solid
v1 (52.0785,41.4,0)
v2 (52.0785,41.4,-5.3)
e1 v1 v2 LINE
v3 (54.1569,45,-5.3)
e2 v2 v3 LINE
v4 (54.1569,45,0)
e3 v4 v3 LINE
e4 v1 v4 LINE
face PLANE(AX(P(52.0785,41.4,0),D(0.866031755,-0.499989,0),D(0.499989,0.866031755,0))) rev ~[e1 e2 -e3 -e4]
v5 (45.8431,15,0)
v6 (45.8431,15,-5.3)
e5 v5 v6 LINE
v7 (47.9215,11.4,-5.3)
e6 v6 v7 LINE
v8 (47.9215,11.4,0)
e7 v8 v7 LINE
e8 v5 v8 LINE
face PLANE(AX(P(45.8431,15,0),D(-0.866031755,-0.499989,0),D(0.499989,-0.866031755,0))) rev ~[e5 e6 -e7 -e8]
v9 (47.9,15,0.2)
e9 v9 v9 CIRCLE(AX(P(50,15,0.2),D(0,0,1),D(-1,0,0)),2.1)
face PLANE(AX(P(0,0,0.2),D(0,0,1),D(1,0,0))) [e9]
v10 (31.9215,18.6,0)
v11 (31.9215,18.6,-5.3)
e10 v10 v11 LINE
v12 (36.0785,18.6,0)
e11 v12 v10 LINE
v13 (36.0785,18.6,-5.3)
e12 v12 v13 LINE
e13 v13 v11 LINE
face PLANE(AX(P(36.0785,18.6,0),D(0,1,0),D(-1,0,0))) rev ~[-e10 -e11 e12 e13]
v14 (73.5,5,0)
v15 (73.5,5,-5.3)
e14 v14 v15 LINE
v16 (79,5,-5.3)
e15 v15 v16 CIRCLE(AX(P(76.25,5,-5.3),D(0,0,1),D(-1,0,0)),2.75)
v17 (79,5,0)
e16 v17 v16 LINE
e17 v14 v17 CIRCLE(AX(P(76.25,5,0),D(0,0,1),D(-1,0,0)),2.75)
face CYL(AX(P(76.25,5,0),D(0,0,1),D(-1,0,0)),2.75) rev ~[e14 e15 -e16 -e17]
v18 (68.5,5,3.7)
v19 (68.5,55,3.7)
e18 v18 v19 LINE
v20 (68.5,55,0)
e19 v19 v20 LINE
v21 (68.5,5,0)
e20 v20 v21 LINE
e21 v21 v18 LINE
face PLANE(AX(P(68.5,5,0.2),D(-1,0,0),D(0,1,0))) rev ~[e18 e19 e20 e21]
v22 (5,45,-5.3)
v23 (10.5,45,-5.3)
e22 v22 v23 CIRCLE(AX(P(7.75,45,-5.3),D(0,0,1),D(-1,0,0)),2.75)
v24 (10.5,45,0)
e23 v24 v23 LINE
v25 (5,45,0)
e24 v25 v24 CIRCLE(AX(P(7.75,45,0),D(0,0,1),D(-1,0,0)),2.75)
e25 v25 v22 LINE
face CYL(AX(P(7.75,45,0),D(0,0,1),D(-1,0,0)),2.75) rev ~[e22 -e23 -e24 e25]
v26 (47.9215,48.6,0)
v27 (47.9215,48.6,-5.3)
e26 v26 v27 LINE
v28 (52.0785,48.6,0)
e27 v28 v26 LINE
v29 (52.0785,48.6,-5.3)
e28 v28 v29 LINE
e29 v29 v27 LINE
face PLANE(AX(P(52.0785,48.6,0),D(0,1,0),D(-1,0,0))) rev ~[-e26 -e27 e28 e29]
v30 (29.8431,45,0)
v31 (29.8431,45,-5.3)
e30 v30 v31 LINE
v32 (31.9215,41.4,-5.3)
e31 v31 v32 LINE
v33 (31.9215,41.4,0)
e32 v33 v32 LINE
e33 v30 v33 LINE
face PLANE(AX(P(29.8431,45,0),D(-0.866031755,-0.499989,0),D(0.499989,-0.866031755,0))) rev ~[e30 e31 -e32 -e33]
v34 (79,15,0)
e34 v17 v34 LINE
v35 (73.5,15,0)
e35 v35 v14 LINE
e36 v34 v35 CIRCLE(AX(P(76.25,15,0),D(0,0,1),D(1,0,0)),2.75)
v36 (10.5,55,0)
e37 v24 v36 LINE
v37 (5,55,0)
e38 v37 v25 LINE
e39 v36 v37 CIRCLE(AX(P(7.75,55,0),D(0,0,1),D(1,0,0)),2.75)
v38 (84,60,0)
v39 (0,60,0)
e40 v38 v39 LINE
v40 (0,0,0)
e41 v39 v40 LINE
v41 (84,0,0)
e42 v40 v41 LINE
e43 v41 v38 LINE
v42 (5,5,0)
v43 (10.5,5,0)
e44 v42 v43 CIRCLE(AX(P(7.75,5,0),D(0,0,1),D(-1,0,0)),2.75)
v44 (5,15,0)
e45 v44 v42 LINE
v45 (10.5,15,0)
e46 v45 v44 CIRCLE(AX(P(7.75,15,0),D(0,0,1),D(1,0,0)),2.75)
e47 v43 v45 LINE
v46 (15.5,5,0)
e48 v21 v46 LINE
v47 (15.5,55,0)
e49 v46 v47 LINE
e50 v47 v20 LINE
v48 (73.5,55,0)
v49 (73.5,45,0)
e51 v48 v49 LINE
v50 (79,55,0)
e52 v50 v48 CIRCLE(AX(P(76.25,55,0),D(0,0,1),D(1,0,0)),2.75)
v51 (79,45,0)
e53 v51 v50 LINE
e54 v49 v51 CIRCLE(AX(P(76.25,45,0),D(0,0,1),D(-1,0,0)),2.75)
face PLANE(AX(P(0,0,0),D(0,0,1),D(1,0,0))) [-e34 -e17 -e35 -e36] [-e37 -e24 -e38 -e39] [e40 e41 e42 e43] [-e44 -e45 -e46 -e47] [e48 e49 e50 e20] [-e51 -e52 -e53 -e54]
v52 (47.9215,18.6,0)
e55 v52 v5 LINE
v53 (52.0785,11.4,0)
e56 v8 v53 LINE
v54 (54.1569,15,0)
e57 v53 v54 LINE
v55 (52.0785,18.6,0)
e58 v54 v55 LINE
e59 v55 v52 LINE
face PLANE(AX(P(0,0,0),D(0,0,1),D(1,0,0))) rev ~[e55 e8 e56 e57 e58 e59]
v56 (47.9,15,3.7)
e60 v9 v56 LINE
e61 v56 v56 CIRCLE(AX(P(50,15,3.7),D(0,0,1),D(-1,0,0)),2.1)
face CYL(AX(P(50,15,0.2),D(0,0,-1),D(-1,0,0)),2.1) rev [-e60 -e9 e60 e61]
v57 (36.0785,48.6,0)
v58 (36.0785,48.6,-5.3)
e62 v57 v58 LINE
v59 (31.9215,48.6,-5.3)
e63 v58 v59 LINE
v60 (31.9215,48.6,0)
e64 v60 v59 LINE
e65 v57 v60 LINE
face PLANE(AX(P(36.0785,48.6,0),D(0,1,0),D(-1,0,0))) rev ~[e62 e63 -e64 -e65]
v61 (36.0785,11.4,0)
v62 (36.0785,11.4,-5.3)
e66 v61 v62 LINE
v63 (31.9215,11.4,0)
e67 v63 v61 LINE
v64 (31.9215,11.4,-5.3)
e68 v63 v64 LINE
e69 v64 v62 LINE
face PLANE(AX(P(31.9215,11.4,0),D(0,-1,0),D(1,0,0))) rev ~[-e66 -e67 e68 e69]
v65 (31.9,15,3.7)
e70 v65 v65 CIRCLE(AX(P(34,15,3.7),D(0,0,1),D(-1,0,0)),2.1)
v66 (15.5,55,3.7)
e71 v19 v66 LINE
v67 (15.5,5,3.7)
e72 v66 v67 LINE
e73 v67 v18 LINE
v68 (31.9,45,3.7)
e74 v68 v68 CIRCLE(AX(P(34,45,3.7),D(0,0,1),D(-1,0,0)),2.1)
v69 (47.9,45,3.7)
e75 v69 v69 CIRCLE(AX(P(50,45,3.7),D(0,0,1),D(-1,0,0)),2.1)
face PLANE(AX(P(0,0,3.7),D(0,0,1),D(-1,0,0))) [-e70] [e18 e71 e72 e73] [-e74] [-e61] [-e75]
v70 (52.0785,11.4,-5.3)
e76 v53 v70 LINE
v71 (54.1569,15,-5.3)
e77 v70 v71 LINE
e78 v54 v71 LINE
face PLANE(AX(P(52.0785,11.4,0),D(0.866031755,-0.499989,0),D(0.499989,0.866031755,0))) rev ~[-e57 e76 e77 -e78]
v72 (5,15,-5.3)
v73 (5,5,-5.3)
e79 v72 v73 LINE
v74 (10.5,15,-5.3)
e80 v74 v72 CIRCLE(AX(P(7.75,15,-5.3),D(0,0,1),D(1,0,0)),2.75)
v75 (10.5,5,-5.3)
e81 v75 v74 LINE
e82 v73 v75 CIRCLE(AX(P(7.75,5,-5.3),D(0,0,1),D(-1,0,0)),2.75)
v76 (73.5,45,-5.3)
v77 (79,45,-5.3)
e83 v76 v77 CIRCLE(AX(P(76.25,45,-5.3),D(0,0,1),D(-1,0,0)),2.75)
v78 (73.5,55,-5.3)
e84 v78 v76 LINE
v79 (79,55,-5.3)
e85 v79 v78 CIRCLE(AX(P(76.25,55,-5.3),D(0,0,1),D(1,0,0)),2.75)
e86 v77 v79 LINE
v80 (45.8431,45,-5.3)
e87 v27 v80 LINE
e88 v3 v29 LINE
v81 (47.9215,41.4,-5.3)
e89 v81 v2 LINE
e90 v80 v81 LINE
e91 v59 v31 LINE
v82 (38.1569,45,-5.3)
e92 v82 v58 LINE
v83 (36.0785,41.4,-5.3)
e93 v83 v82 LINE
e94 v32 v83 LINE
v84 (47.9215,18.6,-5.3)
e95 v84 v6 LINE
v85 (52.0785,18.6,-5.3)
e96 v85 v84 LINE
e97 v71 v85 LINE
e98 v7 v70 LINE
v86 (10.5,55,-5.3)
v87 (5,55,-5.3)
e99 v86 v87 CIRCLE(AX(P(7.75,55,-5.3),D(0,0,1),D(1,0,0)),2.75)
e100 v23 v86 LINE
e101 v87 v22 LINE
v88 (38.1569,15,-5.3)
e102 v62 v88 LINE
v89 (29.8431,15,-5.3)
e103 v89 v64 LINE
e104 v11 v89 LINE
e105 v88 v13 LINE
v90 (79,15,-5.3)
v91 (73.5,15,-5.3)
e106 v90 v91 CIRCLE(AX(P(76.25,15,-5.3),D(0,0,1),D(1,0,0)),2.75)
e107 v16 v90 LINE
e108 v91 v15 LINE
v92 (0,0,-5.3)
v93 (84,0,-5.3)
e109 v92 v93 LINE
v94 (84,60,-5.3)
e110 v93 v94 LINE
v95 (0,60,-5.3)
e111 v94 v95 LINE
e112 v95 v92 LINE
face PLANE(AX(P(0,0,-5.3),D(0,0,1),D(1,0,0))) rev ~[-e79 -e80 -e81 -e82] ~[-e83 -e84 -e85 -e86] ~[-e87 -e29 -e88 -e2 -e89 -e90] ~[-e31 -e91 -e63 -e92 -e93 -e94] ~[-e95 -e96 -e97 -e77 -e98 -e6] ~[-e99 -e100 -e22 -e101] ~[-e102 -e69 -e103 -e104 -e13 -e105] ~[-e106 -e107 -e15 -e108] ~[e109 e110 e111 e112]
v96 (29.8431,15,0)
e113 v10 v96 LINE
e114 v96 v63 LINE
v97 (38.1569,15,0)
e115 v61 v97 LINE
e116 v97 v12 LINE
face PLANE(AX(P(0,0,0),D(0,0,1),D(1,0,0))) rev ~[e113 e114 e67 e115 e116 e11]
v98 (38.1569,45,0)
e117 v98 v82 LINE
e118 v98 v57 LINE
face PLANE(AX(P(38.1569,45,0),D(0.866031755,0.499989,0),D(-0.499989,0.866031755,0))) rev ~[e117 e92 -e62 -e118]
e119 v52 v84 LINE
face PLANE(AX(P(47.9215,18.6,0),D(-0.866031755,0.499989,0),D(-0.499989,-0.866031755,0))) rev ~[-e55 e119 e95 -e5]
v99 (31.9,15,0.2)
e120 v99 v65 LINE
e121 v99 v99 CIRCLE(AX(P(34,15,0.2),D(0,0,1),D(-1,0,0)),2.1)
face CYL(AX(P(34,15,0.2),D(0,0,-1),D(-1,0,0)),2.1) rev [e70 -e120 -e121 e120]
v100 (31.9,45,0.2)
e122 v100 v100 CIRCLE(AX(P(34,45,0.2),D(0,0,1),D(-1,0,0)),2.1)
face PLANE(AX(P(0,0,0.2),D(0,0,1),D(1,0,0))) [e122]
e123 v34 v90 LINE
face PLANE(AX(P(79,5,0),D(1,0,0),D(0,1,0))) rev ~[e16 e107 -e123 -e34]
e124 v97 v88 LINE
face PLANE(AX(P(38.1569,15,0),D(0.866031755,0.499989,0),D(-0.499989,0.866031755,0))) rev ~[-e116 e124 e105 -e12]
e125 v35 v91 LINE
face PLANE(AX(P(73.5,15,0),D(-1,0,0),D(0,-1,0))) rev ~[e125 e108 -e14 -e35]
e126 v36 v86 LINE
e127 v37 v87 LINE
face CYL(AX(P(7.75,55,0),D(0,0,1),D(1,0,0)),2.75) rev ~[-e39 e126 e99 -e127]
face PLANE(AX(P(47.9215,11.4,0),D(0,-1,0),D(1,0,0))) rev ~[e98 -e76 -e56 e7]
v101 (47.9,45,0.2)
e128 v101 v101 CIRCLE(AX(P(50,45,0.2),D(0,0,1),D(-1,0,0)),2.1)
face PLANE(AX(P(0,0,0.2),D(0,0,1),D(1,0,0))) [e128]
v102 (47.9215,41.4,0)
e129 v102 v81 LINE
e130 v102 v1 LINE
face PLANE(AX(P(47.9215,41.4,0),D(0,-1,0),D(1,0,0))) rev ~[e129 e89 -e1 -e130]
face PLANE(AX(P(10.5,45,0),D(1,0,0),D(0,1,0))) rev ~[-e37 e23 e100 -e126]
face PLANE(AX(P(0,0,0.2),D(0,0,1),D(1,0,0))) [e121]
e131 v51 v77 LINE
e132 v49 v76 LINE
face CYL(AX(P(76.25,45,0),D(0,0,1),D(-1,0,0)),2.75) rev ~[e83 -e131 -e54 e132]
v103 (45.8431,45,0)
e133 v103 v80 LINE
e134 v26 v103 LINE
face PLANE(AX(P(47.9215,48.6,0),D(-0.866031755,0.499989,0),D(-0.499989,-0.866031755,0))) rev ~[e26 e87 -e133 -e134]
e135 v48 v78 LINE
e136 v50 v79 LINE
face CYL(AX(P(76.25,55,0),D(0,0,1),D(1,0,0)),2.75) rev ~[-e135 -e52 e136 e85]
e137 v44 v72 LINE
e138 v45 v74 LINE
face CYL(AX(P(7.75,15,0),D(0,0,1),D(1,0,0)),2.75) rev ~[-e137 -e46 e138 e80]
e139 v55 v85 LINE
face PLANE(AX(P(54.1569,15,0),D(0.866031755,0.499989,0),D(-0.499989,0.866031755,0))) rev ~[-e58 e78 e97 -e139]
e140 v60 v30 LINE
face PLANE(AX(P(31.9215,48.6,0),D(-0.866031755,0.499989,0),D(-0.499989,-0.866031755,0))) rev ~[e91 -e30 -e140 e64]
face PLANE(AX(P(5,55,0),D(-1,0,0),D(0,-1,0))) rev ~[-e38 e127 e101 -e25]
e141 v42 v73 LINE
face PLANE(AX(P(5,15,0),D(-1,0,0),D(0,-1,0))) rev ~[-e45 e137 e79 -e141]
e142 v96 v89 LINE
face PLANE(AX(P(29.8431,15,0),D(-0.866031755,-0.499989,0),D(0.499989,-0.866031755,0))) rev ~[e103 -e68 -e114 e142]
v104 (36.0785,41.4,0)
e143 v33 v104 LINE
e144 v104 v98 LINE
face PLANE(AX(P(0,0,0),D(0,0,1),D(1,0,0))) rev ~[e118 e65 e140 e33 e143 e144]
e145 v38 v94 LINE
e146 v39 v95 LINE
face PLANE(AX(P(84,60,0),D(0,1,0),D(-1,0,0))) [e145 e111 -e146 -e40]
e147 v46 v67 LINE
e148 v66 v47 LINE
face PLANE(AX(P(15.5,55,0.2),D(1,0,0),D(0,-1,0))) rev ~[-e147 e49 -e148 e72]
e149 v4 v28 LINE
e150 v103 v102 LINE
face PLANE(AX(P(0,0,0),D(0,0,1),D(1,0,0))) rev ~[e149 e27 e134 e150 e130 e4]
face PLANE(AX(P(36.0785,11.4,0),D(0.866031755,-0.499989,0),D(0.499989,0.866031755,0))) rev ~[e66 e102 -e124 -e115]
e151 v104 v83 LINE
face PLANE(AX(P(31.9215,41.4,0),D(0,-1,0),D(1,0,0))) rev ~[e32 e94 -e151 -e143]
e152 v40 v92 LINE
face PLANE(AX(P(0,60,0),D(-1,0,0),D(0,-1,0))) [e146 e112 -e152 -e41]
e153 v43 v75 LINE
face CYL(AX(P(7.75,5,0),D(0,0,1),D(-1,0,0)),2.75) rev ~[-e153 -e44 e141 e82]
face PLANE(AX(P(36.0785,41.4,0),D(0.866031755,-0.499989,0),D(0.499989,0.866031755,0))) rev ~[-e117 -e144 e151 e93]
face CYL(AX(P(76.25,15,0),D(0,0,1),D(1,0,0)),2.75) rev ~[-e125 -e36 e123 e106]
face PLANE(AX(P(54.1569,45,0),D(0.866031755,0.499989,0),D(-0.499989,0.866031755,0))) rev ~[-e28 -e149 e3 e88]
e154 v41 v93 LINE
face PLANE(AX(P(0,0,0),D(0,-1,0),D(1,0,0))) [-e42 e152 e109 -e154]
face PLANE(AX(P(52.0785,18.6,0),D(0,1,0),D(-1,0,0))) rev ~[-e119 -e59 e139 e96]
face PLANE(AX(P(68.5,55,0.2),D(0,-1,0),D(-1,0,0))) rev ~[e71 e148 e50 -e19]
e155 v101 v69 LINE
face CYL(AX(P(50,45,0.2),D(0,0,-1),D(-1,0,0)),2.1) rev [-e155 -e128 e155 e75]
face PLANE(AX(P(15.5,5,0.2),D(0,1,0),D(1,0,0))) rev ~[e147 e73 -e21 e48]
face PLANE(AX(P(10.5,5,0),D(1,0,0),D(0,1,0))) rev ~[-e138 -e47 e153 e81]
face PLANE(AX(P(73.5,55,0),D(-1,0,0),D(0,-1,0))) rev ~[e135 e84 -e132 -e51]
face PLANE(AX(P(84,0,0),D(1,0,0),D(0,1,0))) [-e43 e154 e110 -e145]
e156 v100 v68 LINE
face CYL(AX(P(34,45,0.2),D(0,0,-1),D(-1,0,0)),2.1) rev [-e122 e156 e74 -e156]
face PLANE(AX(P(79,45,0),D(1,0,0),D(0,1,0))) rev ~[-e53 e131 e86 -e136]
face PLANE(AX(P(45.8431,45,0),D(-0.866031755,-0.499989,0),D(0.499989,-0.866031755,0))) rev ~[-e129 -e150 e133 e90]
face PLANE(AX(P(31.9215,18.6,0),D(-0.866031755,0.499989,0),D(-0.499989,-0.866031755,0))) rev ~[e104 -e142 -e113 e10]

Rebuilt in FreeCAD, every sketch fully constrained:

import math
import FreeCAD as App
import Part
import Sketcher
Q = App.Units.Quantity


def add_polygon(sketch, points):
    """Adds a closed chain of lines whose ends are joined by coincident constraints."""
    first, n = sketch.GeometryCount, len(points)
    for a, b in zip(points, points[1:] + points[:1]):
        sketch.addGeometry(Part.LineSegment(App.Vector(*a, 0), App.Vector(*b, 0)), False)
    for i in range(n):
        sketch.addConstraint(Sketcher.Constraint("Coincident", first + i, 2, first + (i + 1) % n, 1))

doc = App.newDocument("Part")
body = doc.addObject("PartDesign::Body", "Body")

sketch1 = body.newObject("Sketcher::SketchObject", "Sketch")
sketch1.AttachmentSupport = (doc.getObject("XY_Plane"), [""])
sketch1.MapMode = "FlatFace"
add_polygon(sketch1, [(0, 60), (0, 0), (84, 0), (84, 60)])
sketch1.addGeometry(Part.LineSegment(App.Vector(10.5, 15, 0), App.Vector(10.5, 5, 0)), False)
sketch1.addGeometry(Part.ArcOfCircle(Part.Circle(App.Vector(7.8, 5, 0), App.Vector(0, 0, 1), 2.8), math.radians(180), math.radians(360)), False)
sketch1.addGeometry(Part.LineSegment(App.Vector(5, 5, 0), App.Vector(5, 15, 0)), False)
sketch1.addGeometry(Part.ArcOfCircle(Part.Circle(App.Vector(7.8, 15, 0), App.Vector(0, 0, 1), 2.8), math.radians(0), math.radians(180)), False)
sketch1.addGeometry(Part.LineSegment(App.Vector(73.5, 5, 0), App.Vector(73.5, 15, 0)), False)
sketch1.addGeometry(Part.ArcOfCircle(Part.Circle(App.Vector(76.2, 15, 0), App.Vector(0, 0, 1), 2.8), math.radians(0), math.radians(180)), False)
sketch1.addGeometry(Part.LineSegment(App.Vector(79, 15, 0), App.Vector(79, 5, 0)), False)
sketch1.addGeometry(Part.ArcOfCircle(Part.Circle(App.Vector(76.2, 5, 0), App.Vector(0, 0, 1), 2.8), math.radians(180), math.radians(360)), False)
sketch1.addGeometry(Part.LineSegment(App.Vector(5, 45, 0), App.Vector(5, 55, 0)), False)
sketch1.addGeometry(Part.ArcOfCircle(Part.Circle(App.Vector(7.8, 55, 0), App.Vector(0, 0, 1), 2.8), math.radians(0), math.radians(180)), False)
sketch1.addGeometry(Part.LineSegment(App.Vector(10.5, 55, 0), App.Vector(10.5, 45, 0)), False)
sketch1.addGeometry(Part.ArcOfCircle(Part.Circle(App.Vector(7.8, 45, 0), App.Vector(0, 0, 1), 2.8), math.radians(180), math.radians(360)), False)
sketch1.addGeometry(Part.LineSegment(App.Vector(73.5, 45, 0), App.Vector(73.5, 55, 0)), False)
sketch1.addGeometry(Part.ArcOfCircle(Part.Circle(App.Vector(76.2, 55, 0), App.Vector(0, 0, 1), 2.8), math.radians(0), math.radians(180)), False)
sketch1.addGeometry(Part.LineSegment(App.Vector(79, 55, 0), App.Vector(79, 45, 0)), False)
sketch1.addGeometry(Part.ArcOfCircle(Part.Circle(App.Vector(76.2, 45, 0), App.Vector(0, 0, 1), 2.8), math.radians(180), math.radians(360)), False)
add_polygon(sketch1, [(47.9, 48.6), (52.1, 48.6), (54.2, 45), (52.1, 41.4), (47.9, 41.4), (45.8, 45)])
add_polygon(sketch1, [(29.8, 15), (31.9, 18.6), (36.1, 18.6), (38.2, 15), (36.1, 11.4), (31.9, 11.4)])
add_polygon(sketch1, [(45.8, 15), (47.9, 18.6), (52.1, 18.6), (54.2, 15), (52.1, 11.4), (47.9, 11.4)])
add_polygon(sketch1, [(38.2, 45), (36.1, 41.4), (31.9, 41.4), (29.8, 45), (31.9, 48.6), (36.1, 48.6)])
sketch1.addConstraint([
    Sketcher.Constraint("Tangent", 4, 2, 5, 2),
    Sketcher.Constraint("Tangent", 5, 1, 6, 1),
    Sketcher.Constraint("Tangent", 6, 2, 7, 2),
    Sketcher.Constraint("Tangent", 7, 1, 4, 1),
    Sketcher.Constraint("Tangent", 8, 2, 9, 2),
    Sketcher.Constraint("Tangent", 9, 1, 10, 1),
    Sketcher.Constraint("Tangent", 10, 2, 11, 2),
    Sketcher.Constraint("Tangent", 11, 1, 8, 1),
    Sketcher.Constraint("Tangent", 12, 2, 13, 2),
    Sketcher.Constraint("Tangent", 13, 1, 14, 1),
    Sketcher.Constraint("Tangent", 14, 2, 15, 2),
    Sketcher.Constraint("Tangent", 15, 1, 12, 1),
    Sketcher.Constraint("Tangent", 16, 2, 17, 2),
    Sketcher.Constraint("Tangent", 17, 1, 18, 1),
    Sketcher.Constraint("Tangent", 18, 2, 19, 2),
    Sketcher.Constraint("Tangent", 19, 1, 16, 1),
    Sketcher.Constraint("Vertical", 0),
    Sketcher.Constraint("Horizontal", 1),
    Sketcher.Constraint("Vertical", 2),
    Sketcher.Constraint("Horizontal", 3),
    Sketcher.Constraint("Vertical", 4),
    Sketcher.Constraint("Vertical", 6),
    Sketcher.Constraint("Vertical", 8),
    Sketcher.Constraint("Vertical", 10),
    Sketcher.Constraint("Vertical", 12),
    Sketcher.Constraint("Vertical", 14),
    Sketcher.Constraint("Vertical", 16),
    Sketcher.Constraint("Vertical", 18),
    Sketcher.Constraint("Horizontal", 20),
    Sketcher.Constraint("Horizontal", 23),
    Sketcher.Constraint("Horizontal", 27),
    Sketcher.Constraint("Horizontal", 30),
    Sketcher.Constraint("Horizontal", 33),
    Sketcher.Constraint("Horizontal", 36),
    Sketcher.Constraint("Horizontal", 39),
    Sketcher.Constraint("Horizontal", 42),
    Sketcher.Constraint("Coincident", 0, 2, -1, 1),
    Sketcher.Constraint("Equal", 7, 9),
    Sketcher.Constraint("Equal", 11, 13),
    Sketcher.Constraint("Equal", 15, 17),
    Sketcher.Constraint("Parallel", 21, 24),
    Sketcher.Constraint("Parallel", 22, 25),
    Sketcher.Constraint("Parallel", 25, 26),
    Sketcher.Constraint("Parallel", 24, 28),
    Sketcher.Constraint("Parallel", 26, 29),
    Sketcher.Constraint("Parallel", 28, 31),
    Sketcher.Constraint("Parallel", 29, 32),
    Sketcher.Constraint("Parallel", 31, 34),
    Sketcher.Constraint("Parallel", 32, 35),
    Sketcher.Constraint("Parallel", 34, 37),
    Sketcher.Constraint("Parallel", 35, 38),
    Sketcher.Constraint("Parallel", 37, 40),
    Sketcher.Constraint("Parallel", 38, 41),
    Sketcher.Constraint("Parallel", 40, 43),
    Sketcher.Constraint("Horizontal", 7, 3, 9, 3),
    Sketcher.Constraint("Horizontal", 5, 3, 11, 3),
    Sketcher.Constraint("Horizontal", 13, 3, 17, 3),
    Sketcher.Constraint("Horizontal", 15, 3, 19, 3),
    Sketcher.Constraint("Horizontal", 19, 1, 21, 2),
    Sketcher.Constraint("Horizontal", 21, 2, 24, 2),
    Sketcher.Constraint("Horizontal", 9, 1, 28, 2),
    Sketcher.Constraint("Horizontal", 28, 2, 31, 2),
    Sketcher.Constraint("Horizontal", 27, 2, 32, 2),
    Sketcher.Constraint("Horizontal", 31, 2, 34, 2),
    Sketcher.Constraint("Horizontal", 30, 2, 35, 2),
    Sketcher.Constraint("Horizontal", 34, 2, 37, 2),
    Sketcher.Constraint("Horizontal", 23, 2, 38, 2),
    Sketcher.Constraint("Horizontal", 24, 2, 40, 2),
    Sketcher.Constraint("Horizontal", 25, 2, 41, 2),
    Sketcher.Constraint("Horizontal", 40, 2, 43, 2),
    Sketcher.Constraint("Vertical", 7, 3, 13, 3),
    Sketcher.Constraint("Vertical", 11, 3, 17, 3),
    Sketcher.Constraint("Vertical", 20, 2, 22, 2),
    Sketcher.Constraint("Vertical", 23, 2, 25, 2),
    Sketcher.Constraint("Vertical", 27, 2, 29, 2),
    Sketcher.Constraint("Vertical", 25, 2, 32, 2),
    Sketcher.Constraint("Vertical", 22, 2, 33, 2),
    Sketcher.Constraint("Vertical", 21, 2, 34, 2),
    Sketcher.Constraint("Vertical", 29, 2, 38, 2),
    Sketcher.Constraint("Vertical", 30, 2, 39, 2),
    Sketcher.Constraint("Equal", 23, 27),
    Sketcher.Constraint("Equal", 10, 12),
    Sketcher.Constraint("DistanceX", 1, 1, 1, 2, 84.0),
    Sketcher.Constraint("DistanceY", 0, 2, 0, 1, 60.0),
    Sketcher.Constraint("Radius", 5, 2.75),
    Sketcher.Constraint("DistanceY", -1, 1, 5, 3, 5.0),
    Sketcher.Constraint("DistanceX", -1, 1, 5, 1, 5.0),
    Sketcher.Constraint("DistanceY", 7, 3, 13, 3, 40.0),
    Sketcher.Constraint("DistanceY", 5, 3, 13, 3, 50.0),
    Sketcher.Constraint("DistanceX", 9, 1, 1, 2, 5.0),
    Sketcher.Constraint("DistanceY", 19, 1, 20, 2, 3.6),
    Sketcher.Constraint("Angle", 21, Q("-60.0007 deg")),
    Sketcher.Constraint("DistanceX", 27, 2, 22, 2, 16.0),
    Sketcher.Constraint("DistanceX", 20, 1, 20, 2, 4.157),
    Sketcher.Constraint("DistanceX", -1, 1, 21, 2, 54.157),
])
pad1 = body.newObject("PartDesign::Pad", "Pad")
pad1.Profile = sketch1
pad1.Length = 5.3
pad1.Reversed = True

sketch2 = body.newObject("Sketcher::SketchObject", "Sketch001")
sketch2.AttachmentSupport = (doc.getObject("XY_Plane"), [""])
sketch2.MapMode = "FlatFace"
add_polygon(sketch2, [(68, 55), (16, 55), (16, 5), (68, 5)])
sketch2.addConstraint([
    Sketcher.Constraint("Horizontal", 0),
    Sketcher.Constraint("Vertical", 1),
    Sketcher.Constraint("Horizontal", 2),
    Sketcher.Constraint("Vertical", 3),
    Sketcher.Constraint("DistanceX", 0, 2, 0, 1, 53.0),
    Sketcher.Constraint("DistanceY", 1, 2, 1, 1, 50.0),
    Sketcher.Constraint("DistanceY", -1, 1, 1, 2, 5.0),
    Sketcher.Constraint("DistanceX", -1, 1, 0, 2, 15.5),
])
pad2 = body.newObject("PartDesign::Pad", "Pad001")
pad2.Profile = sketch2
pad2.Length = 0.2

sketch3 = body.newObject("Sketcher::SketchObject", "Sketch002")
sketch3.AttachmentSupport = (doc.getObject("XY_Plane"), [""])
sketch3.MapMode = "FlatFace"
sketch3.AttachmentOffset = App.Placement(App.Vector(0, 0, 0.2), App.Rotation())
add_polygon(sketch3, [(15.5, 55), (15.5, 5), (68.5, 5), (68.5, 55)])
sketch3.addGeometry(Part.Circle(App.Vector(50, 45, 0), App.Vector(0, 0, 1), 2.1), False)
sketch3.addGeometry(Part.Circle(App.Vector(34, 45, 0), App.Vector(0, 0, 1), 2.1), False)
sketch3.addGeometry(Part.Circle(App.Vector(50, 15, 0), App.Vector(0, 0, 1), 2.1), False)
sketch3.addGeometry(Part.Circle(App.Vector(34, 15, 0), App.Vector(0, 0, 1), 2.1), False)
sketch3.addConstraint([
    Sketcher.Constraint("Vertical", 0),
    Sketcher.Constraint("Horizontal", 1),
    Sketcher.Constraint("Vertical", 2),
    Sketcher.Constraint("Horizontal", 3),
    Sketcher.Constraint("Equal", 4, 5),
    Sketcher.Constraint("Equal", 5, 6),
    Sketcher.Constraint("Equal", 6, 7),
    Sketcher.Constraint("Horizontal", 4, 3, 5, 3),
    Sketcher.Constraint("Horizontal", 6, 3, 7, 3),
    Sketcher.Constraint("Vertical", 4, 3, 6, 3),
    Sketcher.Constraint("Vertical", 5, 3, 7, 3),
    Sketcher.Constraint("Diameter", 4, 4.2),
    Sketcher.Constraint("DistanceX", 1, 1, 1, 2, 53.0),
    Sketcher.Constraint("DistanceY", 0, 2, 0, 1, 50.0),
    Sketcher.Constraint("DistanceX", -1, 1, 4, 3, 50.0),
    Sketcher.Constraint("DistanceY", -1, 1, 4, 3, 45.0),
    Sketcher.Constraint("DistanceX", -1, 1, 5, 3, 34.0),
    Sketcher.Constraint("DistanceY", -1, 1, 6, 3, 15.0),
    Sketcher.Constraint("DistanceY", -1, 1, 0, 2, 5.0),
    Sketcher.Constraint("DistanceX", -1, 1, 0, 2, 15.5),
])
pad3 = body.newObject("PartDesign::Pad", "Pad002")
pad3.Profile = sketch3
pad3.Length = 3.5

doc.recompute()
